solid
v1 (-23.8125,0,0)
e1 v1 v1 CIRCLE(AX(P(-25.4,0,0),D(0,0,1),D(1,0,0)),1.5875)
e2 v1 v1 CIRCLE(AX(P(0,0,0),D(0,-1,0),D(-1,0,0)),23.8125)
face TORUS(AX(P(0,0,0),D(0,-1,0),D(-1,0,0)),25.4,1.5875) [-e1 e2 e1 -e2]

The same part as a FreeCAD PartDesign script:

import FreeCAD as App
import Part
import Sketcher

V = App.Vector
Q = App.Units.Quantity

doc = App.newDocument("Part")
body = doc.addObject("PartDesign::Body", "Body")

sketch1 = doc.addObject("Sketcher::SketchObject", "Sketch")
body.addObject(sketch1)
sketch1.AttachmentSupport = (doc.XY_Plane, [""])
sketch1.MapMode = "FlatFace"
sketch1.addGeometry(Part.Circle(V(-25.4, 0, 0), V(0, 0, 1), 1.6), False)
sketch1.addConstraint(Sketcher.Constraint("PointOnObject", 0, 3, -1))
sketch1.addConstraint(Sketcher.Constraint("Diameter", 0, Q("0.125 in")))
sketch1.addConstraint(Sketcher.Constraint("DistanceX", 0, 3, -1, 1, Q("1 in")))
revolution = doc.addObject("PartDesign::Revolution", "Revolution")
body.addObject(revolution)
revolution.Profile = sketch1
revolution.ReferenceAxis = (sketch1, ["V_Axis"])
revolution.Angle = 360

doc.recompute()
